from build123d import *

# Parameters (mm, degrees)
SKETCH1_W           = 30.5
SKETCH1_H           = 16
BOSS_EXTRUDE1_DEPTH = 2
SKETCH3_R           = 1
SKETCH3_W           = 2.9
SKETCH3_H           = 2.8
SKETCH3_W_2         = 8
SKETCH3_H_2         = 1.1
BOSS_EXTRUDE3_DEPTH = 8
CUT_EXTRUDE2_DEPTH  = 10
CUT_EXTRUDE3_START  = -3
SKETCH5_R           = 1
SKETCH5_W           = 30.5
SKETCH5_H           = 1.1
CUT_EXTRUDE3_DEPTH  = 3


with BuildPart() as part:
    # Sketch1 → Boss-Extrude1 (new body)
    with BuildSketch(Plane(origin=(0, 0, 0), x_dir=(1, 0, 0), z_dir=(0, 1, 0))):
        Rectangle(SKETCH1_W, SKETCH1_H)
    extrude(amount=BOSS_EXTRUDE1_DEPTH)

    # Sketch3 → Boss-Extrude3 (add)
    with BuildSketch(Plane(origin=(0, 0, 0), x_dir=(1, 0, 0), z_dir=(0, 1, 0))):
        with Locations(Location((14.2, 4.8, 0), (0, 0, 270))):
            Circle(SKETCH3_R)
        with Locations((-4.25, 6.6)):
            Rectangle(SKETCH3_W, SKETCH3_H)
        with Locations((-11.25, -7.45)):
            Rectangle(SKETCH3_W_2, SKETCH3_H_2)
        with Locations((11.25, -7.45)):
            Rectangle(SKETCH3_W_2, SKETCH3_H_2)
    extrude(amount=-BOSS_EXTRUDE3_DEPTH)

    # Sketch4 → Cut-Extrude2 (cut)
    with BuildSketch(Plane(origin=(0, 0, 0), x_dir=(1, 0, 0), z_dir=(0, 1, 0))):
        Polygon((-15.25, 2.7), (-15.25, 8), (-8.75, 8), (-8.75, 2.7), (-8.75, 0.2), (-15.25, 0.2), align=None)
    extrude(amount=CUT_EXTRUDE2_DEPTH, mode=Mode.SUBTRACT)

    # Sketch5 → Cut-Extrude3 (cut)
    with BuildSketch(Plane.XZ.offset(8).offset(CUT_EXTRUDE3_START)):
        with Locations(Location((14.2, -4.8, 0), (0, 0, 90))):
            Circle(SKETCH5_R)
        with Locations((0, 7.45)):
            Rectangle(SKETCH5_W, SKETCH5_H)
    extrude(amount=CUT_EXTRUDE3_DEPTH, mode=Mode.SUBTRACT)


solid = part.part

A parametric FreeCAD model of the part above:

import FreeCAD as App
import Part
import Sketcher

doc = App.newDocument("Part")
body = doc.addObject("PartDesign::Body", "Body")

sketch1 = body.newObject("Sketcher::SketchObject", "Sketch")
sketch1.AttachmentSupport = (doc.getObject("XZ_Plane"), [""])
sketch1.MapMode = "FlatFace"
sketch1.addGeometry(Part.LineSegment(App.Vector(-15, -8, 0), App.Vector(-15, 8, 0)), False)
sketch1.addGeometry(Part.LineSegment(App.Vector(-15, 8, 0), App.Vector(15, 8, 0)), False)
sketch1.addGeometry(Part.LineSegment(App.Vector(15, 8, 0), App.Vector(15, -8, 0)), False)
sketch1.addGeometry(Part.LineSegment(App.Vector(15, -8, 0), App.Vector(-15, -8, 0)), False)
sketch1.addConstraint(Sketcher.Constraint("Coincident", 0, 2, 1, 1))
sketch1.addConstraint(Sketcher.Constraint("Coincident", 1, 2, 2, 1))
sketch1.addConstraint(Sketcher.Constraint("Coincident", 2, 2, 3, 1))
sketch1.addConstraint(Sketcher.Constraint("Coincident", 3, 2, 0, 1))
sketch1.addConstraint(Sketcher.Constraint("Vertical", 0))
sketch1.addConstraint(Sketcher.Constraint("Horizontal", 1))
sketch1.addConstraint(Sketcher.Constraint("Vertical", 2))
sketch1.addConstraint(Sketcher.Constraint("Horizontal", 3))
sketch1.addConstraint(Sketcher.Constraint("Symmetric", 0, 2, 2, 2, -1, 1))
sketch1.addConstraint(Sketcher.Constraint("DistanceY", 0, 1, 0, 2, 16.0))
sketch1.addConstraint(Sketcher.Constraint("DistanceX", 1, 1, 1, 2, 30.5))
pad1 = body.newObject("PartDesign::Pad", "Pad")
pad1.Profile = sketch1
pad1.Length = 2
pad1.Reversed = True

sketch2 = body.newObject("Sketcher::SketchObject", "Sketch001")
sketch2.AttachmentSupport = (doc.getObject("XZ_Plane"), [""])
sketch2.MapMode = "FlatFace"
sketch2.addGeometry(Part.Circle(App.Vector(14.2, -4.8, 0), App.Vector(0, 0, 1), 1), False)
sketch2.addGeometry(Part.LineSegment(App.Vector(-5.7, -8, 0), App.Vector(-5.7, -5.2, 0)), False)
sketch2.addGeometry(Part.LineSegment(App.Vector(-5.7, -5.2, 0), App.Vector(-2.8, -5.2, 0)), False)
sketch2.addGeometry(Part.LineSegment(App.Vector(-2.8, -5.2, 0), App.Vector(-2.8, -8, 0)), False)
sketch2.addGeometry(Part.LineSegment(App.Vector(-2.8, -8, 0), App.Vector(-5.7, -8, 0)), False)
sketch2.addGeometry(Part.LineSegment(App.Vector(-15.2, 6.9, 0), App.Vector(-15.2, 8, 0)), False)
sketch2.addGeometry(Part.LineSegment(App.Vector(-15.2, 8, 0), App.Vector(-7.2, 8, 0)), False)
sketch2.addGeometry(Part.LineSegment(App.Vector(-7.2, 8, 0), App.Vector(-7.2, 6.9, 0)), False)
sketch2.addGeometry(Part.LineSegment(App.Vector(-7.2, 6.9, 0), App.Vector(-15.2, 6.9, 0)), False)
sketch2.addGeometry(Part.LineSegment(App.Vector(7.2, 6.9, 0), App.Vector(7.2, 8, 0)), False)
sketch2.addGeometry(Part.LineSegment(App.Vector(7.2, 8, 0), App.Vector(15.2, 8, 0)), False)
sketch2.addGeometry(Part.LineSegment(App.Vector(15.2, 8, 0), App.Vector(15.2, 6.9, 0)), False)
sketch2.addGeometry(Part.LineSegment(App.Vector(15.2, 6.9, 0), App.Vector(7.2, 6.9, 0)), False)
sketch2.addConstraint(Sketcher.Constraint("Coincident", 1, 2, 2, 1))
sketch2.addConstraint(Sketcher.Constraint("Coincident", 2, 2, 3, 1))
sketch2.addConstraint(Sketcher.Constraint("Coincident", 3, 2, 4, 1))
sketch2.addConstraint(Sketcher.Constraint("Coincident", 4, 2, 1, 1))
sketch2.addConstraint(Sketcher.Constraint("Coincident", 5, 2, 6, 1))
sketch2.addConstraint(Sketcher.Constraint("Coincident", 6, 2, 7, 1))
sketch2.addConstraint(Sketcher.Constraint("Coincident", 7, 2, 8, 1))
sketch2.addConstraint(Sketcher.Constraint("Coincident", 8, 2, 5, 1))
sketch2.addConstraint(Sketcher.Constraint("Coincident", 9, 2, 10, 1))
sketch2.addConstraint(Sketcher.Constraint("Coincident", 10, 2, 11, 1))
sketch2.addConstraint(Sketcher.Constraint("Coincident", 11, 2, 12, 1))
sketch2.addConstraint(Sketcher.Constraint("Coincident", 12, 2, 9, 1))
sketch2.addConstraint(Sketcher.Constraint("Vertical", 1))
sketch2.addConstraint(Sketcher.Constraint("Horizontal", 2))
sketch2.addConstraint(Sketcher.Constraint("Vertical", 3))
sketch2.addConstraint(Sketcher.Constraint("Horizontal", 4))
sketch2.addConstraint(Sketcher.Constraint("Vertical", 5))
sketch2.addConstraint(Sketcher.Constraint("Horizontal", 6))
sketch2.addConstraint(Sketcher.Constraint("Vertical", 7))
sketch2.addConstraint(Sketcher.Constraint("Horizontal", 8))
sketch2.addConstraint(Sketcher.Constraint("Vertical", 9))
sketch2.addConstraint(Sketcher.Constraint("Horizontal", 10))
sketch2.addConstraint(Sketcher.Constraint("Vertical", 11))
sketch2.addConstraint(Sketcher.Constraint("Horizontal", 12))
sketch2.addConstraint(Sketcher.Constraint("Symmetric", 6, 2, 9, 2, -2))
sketch2.addConstraint(Sketcher.Constraint("Symmetric", 8, 2, 11, 2, -2))
sketch2.addConstraint(Sketcher.Constraint("Diameter", 0, 2.0))
sketch2.addConstraint(Sketcher.Constraint("DistanceX", 6, 1, 6, 2, 8.0))
sketch2.addConstraint(Sketcher.Constraint("DistanceX", 2, 1, 2, 2, 2.9))
sketch2.addConstraint(Sketcher.Constraint("DistanceY", 1, 1, 1, 2, 2.8))
sketch2.addConstraint(Sketcher.Constraint("DistanceY", 5, 1, 5, 2, 1.1))
sketch2.addConstraint(Sketcher.Constraint("DistanceY", 3, 2, -1, 1, 8.0))
sketch2.addConstraint(Sketcher.Constraint("DistanceY", -1, 1, 5, 2, 8.0))
sketch2.addConstraint(Sketcher.Constraint("DistanceX", 2, 2, 0, 3, 17.0))
sketch2.addConstraint(Sketcher.Constraint("DistanceX", -1, 1, 0, 3, 14.2))
sketch2.addConstraint(Sketcher.Constraint("DistanceY", 0, 3, -1, 1, 4.8))
sketch2.addConstraint(Sketcher.Constraint("DistanceX", 6, 2, 9, 2, 14.5))
pad2 = body.newObject("PartDesign::Pad", "Pad001")
pad2.Profile = sketch2
pad2.Length = 8

sketch3 = body.newObject("Sketcher::SketchObject", "Sketch002")
sketch3.AttachmentSupport = (doc.getObject("XZ_Plane"), [""])
sketch3.MapMode = "FlatFace"
sketch3.addGeometry(Part.LineSegment(App.Vector(-15, -8, 0), App.Vector(-15, 0, 0)), False)
sketch3.addGeometry(Part.LineSegment(App.Vector(-15, 0, 0), App.Vector(-9, 0, 0)), False)
sketch3.addGeometry(Part.LineSegment(App.Vector(-9, 0, 0), App.Vector(-9, -8, 0)), False)
sketch3.addGeometry(Part.LineSegment(App.Vector(-9, -8, 0), App.Vector(-15, -8, 0)), False)
sketch3.addConstraint(Sketcher.Constraint("Coincident", 0, 2, 1, 1))
sketch3.addConstraint(Sketcher.Constraint("Coincident", 1, 2, 2, 1))
sketch3.addConstraint(Sketcher.Constraint("Coincident", 2, 2, 3, 1))
sketch3.addConstraint(Sketcher.Constraint("Coincident", 3, 2, 0, 1))
sketch3.addConstraint(Sketcher.Constraint("Vertical", 0))
sketch3.addConstraint(Sketcher.Constraint("Horizontal", 1))
sketch3.addConstraint(Sketcher.Constraint("Vertical", 2))
sketch3.addConstraint(Sketcher.Constraint("Horizontal", 3))
sketch3.addConstraint(Sketcher.Constraint("DistanceX", 1, 1, 1, 2, 6.5))
sketch3.addConstraint(Sketcher.Constraint("DistanceY", 0, 1, 0, 2, 7.8))
sketch3.addConstraint(Sketcher.Constraint("DistanceY", 2, 2, -1, 1, 8.0))
sketch3.addConstraint(Sketcher.Constraint("DistanceX", 0, 2, -1, 1, 15.25))
pocket1 = body.newObject("PartDesign::Pocket", "Pocket")
pocket1.Profile = sketch3
pocket1.Length = 10

sketch4 = body.newObject("Sketcher::SketchObject", "Sketch003")
sketch4.AttachmentSupport = (doc.getObject("XZ_Plane"), [""])
sketch4.MapMode = "FlatFace"
sketch4.AttachmentOffset = App.Placement(App.Vector(0, 0, 5), App.Rotation())
sketch4.addGeometry(Part.Circle(App.Vector(14.2, -4.8, 0), App.Vector(0, 0, 1), 1), False)
sketch4.addGeometry(Part.LineSegment(App.Vector(-15.2, 8, 0), App.Vector(-15.2, 6.9, 0)), False)
sketch4.addGeometry(Part.LineSegment(App.Vector(-15.2, 6.9, 0), App.Vector(15.2, 6.9, 0)), False)
sketch4.addGeometry(Part.LineSegment(App.Vector(15.2, 6.9, 0), App.Vector(15.2, 8, 0)), False)
sketch4.addGeometry(Part.LineSegment(App.Vector(15.2, 8, 0), App.Vector(-15.2, 8, 0)), False)
sketch4.addConstraint(Sketcher.Constraint("Coincident", 1, 2, 2, 1))
sketch4.addConstraint(Sketcher.Constraint("Coincident", 2, 2, 3, 1))
sketch4.addConstraint(Sketcher.Constraint("Coincident", 3, 2, 4, 1))
sketch4.addConstraint(Sketcher.Constraint("Coincident", 4, 2, 1, 1))
sketch4.addConstraint(Sketcher.Constraint("Vertical", 1))
sketch4.addConstraint(Sketcher.Constraint("Horizontal", 2))
sketch4.addConstraint(Sketcher.Constraint("Vertical", 3))
sketch4.addConstraint(Sketcher.Constraint("Horizontal", 4))
sketch4.addConstraint(Sketcher.Constraint("Diameter", 0, 2.0))
sketch4.addConstraint(Sketcher.Constraint("DistanceX", 2, 1, 2, 2, 30.5))
sketch4.addConstraint(Sketcher.Constraint("DistanceY", 1, 2, 1, 1, 1.1))
sketch4.addConstraint(Sketcher.Constraint("DistanceY", -1, 1, 3, 2, 8.0))
sketch4.addConstraint(Sketcher.Constraint("DistanceX", -1, 1, 0, 3, 14.2))
sketch4.addConstraint(Sketcher.Constraint("DistanceY", 0, 3, -1, 1, 4.8))
sketch4.addConstraint(Sketcher.Constraint("DistanceX", 1, 2, -1, 1, 15.25))
pocket2 = body.newObject("PartDesign::Pocket", "Pocket001")
pocket2.Profile = sketch4
pocket2.Length = 3
pocket2.Reversed = True

doc.recompute()
